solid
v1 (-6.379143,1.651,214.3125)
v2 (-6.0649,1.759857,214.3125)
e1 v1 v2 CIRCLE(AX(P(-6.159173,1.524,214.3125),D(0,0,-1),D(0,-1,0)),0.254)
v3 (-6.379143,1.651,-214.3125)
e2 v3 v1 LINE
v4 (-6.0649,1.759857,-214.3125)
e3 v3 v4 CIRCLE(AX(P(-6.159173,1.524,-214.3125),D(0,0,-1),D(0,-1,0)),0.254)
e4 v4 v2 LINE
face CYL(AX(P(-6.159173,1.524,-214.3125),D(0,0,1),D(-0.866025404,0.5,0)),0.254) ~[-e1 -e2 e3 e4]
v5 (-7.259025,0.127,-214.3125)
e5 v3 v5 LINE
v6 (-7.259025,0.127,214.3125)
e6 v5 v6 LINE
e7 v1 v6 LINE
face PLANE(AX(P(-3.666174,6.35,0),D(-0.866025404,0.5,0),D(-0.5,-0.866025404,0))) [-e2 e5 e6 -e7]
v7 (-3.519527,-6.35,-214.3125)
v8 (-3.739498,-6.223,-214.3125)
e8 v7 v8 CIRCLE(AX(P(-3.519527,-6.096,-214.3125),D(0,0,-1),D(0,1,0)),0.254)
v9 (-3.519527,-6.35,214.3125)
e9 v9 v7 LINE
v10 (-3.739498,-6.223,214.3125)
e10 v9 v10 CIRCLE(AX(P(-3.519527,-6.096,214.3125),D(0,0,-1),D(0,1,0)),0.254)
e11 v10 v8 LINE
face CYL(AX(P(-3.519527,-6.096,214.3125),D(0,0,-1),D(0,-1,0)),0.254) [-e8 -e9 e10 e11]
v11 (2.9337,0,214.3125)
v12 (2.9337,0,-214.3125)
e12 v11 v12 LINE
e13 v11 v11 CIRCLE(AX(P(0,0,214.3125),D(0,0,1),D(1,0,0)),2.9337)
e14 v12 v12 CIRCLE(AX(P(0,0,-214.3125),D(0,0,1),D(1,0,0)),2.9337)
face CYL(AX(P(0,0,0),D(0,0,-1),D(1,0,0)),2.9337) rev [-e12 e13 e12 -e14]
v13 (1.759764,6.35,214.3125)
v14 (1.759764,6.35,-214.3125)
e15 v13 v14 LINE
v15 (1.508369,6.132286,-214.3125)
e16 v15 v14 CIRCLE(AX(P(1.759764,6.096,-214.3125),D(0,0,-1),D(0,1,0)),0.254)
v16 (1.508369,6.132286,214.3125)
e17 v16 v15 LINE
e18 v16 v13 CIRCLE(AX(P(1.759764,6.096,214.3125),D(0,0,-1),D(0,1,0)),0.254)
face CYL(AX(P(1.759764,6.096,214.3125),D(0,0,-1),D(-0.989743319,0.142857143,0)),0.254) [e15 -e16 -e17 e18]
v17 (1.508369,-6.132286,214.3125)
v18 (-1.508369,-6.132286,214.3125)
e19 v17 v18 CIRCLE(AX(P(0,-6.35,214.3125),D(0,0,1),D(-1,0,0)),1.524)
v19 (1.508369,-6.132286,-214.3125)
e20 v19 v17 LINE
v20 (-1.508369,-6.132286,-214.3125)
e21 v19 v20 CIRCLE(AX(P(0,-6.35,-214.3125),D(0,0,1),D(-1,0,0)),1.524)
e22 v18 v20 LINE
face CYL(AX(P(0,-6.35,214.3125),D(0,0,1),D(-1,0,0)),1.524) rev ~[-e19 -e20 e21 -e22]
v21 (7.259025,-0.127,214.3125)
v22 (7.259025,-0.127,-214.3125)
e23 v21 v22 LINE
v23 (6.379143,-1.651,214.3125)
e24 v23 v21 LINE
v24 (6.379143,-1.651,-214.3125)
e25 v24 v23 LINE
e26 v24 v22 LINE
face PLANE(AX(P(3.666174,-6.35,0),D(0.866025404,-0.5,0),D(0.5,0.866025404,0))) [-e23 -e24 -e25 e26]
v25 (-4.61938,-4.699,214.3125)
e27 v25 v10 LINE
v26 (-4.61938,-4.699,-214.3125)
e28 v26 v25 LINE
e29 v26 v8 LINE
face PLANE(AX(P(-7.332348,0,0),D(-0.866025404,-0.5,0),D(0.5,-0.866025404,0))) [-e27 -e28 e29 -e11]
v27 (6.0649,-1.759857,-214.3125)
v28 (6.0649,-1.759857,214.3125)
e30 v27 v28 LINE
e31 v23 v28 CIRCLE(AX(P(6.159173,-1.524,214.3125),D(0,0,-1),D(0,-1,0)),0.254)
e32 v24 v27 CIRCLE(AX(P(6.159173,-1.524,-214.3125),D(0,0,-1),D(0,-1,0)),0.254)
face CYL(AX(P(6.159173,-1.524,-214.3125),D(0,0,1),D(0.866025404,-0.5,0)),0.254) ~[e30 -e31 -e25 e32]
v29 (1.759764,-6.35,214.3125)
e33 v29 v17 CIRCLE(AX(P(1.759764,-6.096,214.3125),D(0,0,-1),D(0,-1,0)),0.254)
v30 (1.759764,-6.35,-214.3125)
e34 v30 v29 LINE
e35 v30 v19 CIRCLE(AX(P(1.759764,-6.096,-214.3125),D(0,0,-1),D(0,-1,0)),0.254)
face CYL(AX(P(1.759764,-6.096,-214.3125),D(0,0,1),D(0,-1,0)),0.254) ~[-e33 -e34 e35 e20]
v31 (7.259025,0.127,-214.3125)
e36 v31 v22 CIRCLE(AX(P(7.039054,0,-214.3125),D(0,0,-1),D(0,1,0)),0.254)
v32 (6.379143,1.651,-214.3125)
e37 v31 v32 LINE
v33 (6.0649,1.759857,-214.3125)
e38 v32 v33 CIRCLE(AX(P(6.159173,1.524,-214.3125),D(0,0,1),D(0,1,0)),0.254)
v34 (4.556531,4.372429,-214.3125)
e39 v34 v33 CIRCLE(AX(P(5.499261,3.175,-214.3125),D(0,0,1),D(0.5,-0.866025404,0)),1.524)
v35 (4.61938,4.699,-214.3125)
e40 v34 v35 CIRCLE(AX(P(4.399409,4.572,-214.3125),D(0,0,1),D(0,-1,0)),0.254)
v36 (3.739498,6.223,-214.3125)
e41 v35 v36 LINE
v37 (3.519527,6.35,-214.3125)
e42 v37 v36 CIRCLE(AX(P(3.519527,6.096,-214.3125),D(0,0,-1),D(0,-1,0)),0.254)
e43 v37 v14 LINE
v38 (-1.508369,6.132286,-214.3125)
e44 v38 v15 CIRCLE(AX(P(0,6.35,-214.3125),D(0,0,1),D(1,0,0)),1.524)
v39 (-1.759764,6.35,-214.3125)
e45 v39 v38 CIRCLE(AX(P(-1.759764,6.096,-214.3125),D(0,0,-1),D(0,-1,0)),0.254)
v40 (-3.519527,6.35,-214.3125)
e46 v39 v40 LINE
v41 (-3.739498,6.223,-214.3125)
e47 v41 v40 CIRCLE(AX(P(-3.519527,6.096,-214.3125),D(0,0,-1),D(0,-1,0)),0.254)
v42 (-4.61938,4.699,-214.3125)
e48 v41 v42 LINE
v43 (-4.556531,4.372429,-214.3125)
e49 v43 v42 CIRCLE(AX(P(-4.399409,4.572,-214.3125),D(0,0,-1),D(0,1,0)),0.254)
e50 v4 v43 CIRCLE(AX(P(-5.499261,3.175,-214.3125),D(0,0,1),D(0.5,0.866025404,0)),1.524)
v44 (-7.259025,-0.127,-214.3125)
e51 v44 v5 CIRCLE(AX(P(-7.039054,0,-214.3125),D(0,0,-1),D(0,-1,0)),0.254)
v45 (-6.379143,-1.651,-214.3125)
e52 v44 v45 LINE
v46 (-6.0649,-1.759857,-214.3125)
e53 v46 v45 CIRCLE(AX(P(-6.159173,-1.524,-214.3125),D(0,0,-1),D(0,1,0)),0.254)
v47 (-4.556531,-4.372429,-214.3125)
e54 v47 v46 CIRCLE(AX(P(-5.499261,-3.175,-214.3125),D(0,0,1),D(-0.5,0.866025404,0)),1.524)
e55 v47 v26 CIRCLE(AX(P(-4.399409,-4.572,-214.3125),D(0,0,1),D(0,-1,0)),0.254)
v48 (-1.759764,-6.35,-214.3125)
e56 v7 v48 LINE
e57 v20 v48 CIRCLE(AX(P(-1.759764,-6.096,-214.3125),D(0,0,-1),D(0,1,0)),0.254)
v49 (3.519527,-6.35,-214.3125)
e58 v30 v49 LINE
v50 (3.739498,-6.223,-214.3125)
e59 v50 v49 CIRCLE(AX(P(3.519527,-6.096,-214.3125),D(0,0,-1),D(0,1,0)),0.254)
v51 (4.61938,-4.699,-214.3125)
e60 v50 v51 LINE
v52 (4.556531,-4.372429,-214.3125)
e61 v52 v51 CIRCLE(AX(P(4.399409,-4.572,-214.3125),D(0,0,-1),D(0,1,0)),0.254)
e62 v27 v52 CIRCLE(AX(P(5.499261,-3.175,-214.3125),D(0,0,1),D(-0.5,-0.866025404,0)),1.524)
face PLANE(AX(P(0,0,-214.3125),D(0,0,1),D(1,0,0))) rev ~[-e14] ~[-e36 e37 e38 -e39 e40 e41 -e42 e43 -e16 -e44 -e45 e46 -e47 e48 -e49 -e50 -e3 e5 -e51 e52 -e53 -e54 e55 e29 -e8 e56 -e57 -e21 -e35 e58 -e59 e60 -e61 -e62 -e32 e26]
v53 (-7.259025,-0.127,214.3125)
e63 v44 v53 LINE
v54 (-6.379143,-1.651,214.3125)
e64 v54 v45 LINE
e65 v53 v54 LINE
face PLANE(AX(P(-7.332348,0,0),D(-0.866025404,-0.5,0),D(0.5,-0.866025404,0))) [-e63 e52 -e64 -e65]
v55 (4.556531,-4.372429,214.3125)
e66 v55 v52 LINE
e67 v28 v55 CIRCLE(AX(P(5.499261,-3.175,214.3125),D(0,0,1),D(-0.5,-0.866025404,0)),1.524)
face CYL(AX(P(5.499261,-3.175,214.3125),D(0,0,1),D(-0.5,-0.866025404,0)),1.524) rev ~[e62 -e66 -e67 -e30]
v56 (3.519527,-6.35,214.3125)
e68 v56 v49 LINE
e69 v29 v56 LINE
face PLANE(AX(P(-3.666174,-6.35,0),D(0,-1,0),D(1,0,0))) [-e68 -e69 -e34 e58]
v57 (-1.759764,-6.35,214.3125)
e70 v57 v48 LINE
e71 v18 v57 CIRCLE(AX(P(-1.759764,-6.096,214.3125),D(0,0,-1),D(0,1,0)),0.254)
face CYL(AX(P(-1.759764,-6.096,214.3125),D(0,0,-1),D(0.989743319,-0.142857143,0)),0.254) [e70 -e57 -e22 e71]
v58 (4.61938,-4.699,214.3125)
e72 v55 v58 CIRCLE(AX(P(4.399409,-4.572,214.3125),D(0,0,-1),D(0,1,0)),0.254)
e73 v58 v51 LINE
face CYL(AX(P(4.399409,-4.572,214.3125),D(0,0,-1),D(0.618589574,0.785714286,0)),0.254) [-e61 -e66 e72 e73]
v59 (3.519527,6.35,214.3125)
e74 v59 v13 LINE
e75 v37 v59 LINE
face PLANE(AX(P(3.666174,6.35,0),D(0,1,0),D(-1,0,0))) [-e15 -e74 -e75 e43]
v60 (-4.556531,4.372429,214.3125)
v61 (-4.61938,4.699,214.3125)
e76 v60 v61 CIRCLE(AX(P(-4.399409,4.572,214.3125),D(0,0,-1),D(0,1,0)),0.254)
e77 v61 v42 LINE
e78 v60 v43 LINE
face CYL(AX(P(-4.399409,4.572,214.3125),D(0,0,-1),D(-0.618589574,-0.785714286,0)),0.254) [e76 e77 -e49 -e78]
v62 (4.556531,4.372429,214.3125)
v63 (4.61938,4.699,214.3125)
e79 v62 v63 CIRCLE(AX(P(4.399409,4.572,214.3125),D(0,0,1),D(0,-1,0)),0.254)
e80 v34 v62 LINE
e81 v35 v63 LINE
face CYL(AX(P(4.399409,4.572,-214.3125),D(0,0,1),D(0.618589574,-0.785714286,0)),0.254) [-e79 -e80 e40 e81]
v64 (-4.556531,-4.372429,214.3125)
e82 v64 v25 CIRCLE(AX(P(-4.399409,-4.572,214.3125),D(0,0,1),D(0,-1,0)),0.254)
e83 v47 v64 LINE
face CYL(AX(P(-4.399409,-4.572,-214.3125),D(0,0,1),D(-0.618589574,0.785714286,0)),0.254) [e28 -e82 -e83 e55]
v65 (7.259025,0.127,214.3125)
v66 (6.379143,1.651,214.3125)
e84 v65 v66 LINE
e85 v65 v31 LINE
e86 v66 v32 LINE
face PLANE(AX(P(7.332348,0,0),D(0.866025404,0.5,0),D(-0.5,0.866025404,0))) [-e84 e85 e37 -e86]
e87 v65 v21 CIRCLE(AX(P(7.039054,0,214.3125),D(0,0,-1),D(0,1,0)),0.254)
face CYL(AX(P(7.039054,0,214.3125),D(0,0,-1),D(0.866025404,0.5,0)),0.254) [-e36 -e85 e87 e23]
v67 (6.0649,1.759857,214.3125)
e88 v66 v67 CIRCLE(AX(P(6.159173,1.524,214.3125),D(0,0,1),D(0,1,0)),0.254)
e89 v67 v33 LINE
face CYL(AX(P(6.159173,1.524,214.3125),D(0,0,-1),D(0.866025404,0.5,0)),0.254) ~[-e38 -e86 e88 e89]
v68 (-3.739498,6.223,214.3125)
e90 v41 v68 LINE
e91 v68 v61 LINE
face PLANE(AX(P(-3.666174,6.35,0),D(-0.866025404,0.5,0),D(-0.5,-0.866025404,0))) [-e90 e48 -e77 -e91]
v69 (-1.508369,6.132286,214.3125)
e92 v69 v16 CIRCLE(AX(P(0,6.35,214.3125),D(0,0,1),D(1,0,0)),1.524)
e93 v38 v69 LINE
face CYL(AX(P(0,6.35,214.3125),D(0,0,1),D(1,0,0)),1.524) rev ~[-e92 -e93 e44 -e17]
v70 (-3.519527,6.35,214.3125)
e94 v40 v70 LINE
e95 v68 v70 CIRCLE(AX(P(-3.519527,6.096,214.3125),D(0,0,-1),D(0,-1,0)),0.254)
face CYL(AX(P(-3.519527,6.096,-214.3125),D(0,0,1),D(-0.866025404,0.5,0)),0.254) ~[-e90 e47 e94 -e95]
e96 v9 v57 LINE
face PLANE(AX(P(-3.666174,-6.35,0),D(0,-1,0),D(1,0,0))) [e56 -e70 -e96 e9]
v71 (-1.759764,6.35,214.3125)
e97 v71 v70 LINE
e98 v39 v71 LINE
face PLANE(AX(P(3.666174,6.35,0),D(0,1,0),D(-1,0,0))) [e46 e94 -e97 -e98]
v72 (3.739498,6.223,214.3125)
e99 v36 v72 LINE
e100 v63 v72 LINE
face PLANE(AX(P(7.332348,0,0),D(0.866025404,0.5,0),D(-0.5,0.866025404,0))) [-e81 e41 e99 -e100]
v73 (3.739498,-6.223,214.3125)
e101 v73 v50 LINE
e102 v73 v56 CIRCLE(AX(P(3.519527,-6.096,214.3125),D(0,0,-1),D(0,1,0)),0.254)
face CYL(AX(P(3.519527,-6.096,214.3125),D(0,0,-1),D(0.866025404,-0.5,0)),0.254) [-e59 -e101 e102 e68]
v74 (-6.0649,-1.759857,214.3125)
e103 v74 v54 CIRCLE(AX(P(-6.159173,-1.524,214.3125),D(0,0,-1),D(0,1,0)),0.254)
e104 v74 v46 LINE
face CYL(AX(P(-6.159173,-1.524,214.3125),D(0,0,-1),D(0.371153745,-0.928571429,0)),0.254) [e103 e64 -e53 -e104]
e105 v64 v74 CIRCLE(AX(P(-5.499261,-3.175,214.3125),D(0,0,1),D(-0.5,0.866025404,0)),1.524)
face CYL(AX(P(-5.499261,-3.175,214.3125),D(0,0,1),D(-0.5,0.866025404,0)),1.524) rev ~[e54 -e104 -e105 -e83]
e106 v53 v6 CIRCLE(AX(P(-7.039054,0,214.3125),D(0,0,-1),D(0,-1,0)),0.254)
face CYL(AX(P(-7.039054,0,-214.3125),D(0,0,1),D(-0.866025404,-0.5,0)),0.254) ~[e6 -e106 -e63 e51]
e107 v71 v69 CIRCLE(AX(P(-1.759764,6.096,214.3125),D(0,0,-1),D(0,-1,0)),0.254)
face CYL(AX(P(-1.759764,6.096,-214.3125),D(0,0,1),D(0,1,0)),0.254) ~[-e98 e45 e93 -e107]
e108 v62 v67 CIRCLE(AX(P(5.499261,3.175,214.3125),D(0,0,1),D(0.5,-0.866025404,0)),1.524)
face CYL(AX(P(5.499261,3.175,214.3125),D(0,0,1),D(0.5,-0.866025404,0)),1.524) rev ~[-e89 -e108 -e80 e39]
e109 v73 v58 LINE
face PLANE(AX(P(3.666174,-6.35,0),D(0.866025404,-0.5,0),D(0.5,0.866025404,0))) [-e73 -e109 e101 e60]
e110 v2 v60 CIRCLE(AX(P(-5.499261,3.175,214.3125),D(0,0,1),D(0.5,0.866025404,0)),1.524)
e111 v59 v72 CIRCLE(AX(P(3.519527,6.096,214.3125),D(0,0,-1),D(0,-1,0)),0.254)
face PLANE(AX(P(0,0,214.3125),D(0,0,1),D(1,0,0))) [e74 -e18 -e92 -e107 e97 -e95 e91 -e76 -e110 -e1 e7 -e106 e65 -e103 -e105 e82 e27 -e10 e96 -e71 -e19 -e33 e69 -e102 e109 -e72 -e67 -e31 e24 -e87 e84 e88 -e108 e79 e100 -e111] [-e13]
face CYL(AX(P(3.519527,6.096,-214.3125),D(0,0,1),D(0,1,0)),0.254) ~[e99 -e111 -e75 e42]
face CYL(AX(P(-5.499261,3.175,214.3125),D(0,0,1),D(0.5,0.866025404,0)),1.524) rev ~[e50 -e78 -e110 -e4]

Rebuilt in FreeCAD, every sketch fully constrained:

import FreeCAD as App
import Part
import Sketcher
Q = App.Units.Quantity


def edges_at(feature, points):
    """Names of the edges that pass closest to the given points."""
    edges = feature.Shape.Edges
    near = lambda p: min(range(len(edges)), key=lambda i: edges[i].distToShape(Part.Vertex(*p))[0])
    return sorted({f"Edge{near(p) + 1}" for p in points})


def add_polygon(sketch, points):
    """Adds a closed chain of lines whose ends are joined by coincident constraints."""
    first, n = sketch.GeometryCount, len(points)
    for a, b in zip(points, points[1:] + points[:1]):
        sketch.addGeometry(Part.LineSegment(App.Vector(*a, 0), App.Vector(*b, 0)), False)
    for i in range(n):
        sketch.addConstraint(Sketcher.Constraint("Coincident", first + i, 2, first + (i + 1) % n, 1))

doc = App.newDocument("Part")
body = doc.addObject("PartDesign::Body", "Body")

# Sketch on XY plane
sketch1 = doc.addObject("Sketcher::SketchObject", "Sketch")
body.addObject(sketch1)
sketch1.AttachmentSupport = (doc.XY_Plane, [""])
sketch1.MapMode = "FlatFace"
add_polygon(sketch1, [(7.332348, 0), (3.666174, 6.35), (-3.666174, 6.35), (-7.332348, 0), (-3.666174, -6.35), (3.666174, -6.35)])  # lines 0-5
sketch1.addGeometry(Part.Circle(App.Vector(0, 0, 0), App.Vector(0, 0, 1), 2.9337), False)  # 6
sketch1.addConstraint(Sketcher.Constraint("Horizontal", 1))
sketch1.addConstraint(Sketcher.Constraint("Horizontal", 4))
sketch1.addConstraint(Sketcher.Constraint("Coincident", 6, 3, -1, 1))
sketch1.addConstraint(Sketcher.Constraint("Symmetric", 0, 2, 3, 2, -1, 1))
sketch1.addConstraint(Sketcher.Constraint("Symmetric", 2, 2, 5, 2, -1, 1))
sketch1.addConstraint(Sketcher.Constraint("PointOnObject", 2, 2, -1))
sketch1.addConstraint(Sketcher.Constraint("Parallel", 2, 5))
sketch1.addConstraint(Sketcher.Constraint("Vertical", 1, 2, 3, 2))
sketch1.addConstraint(Sketcher.Constraint("Diameter", 6, Q("0.231 in")))
sketch1.addConstraint(Sketcher.Constraint("Angle", 0, Q("120 deg")))
sketch1.addConstraint(Sketcher.Constraint("DistanceY", 3, 2, 1, 2, Q("0.5 in")))
sketch1.addConstraint(Sketcher.Constraint("DistanceX", 1, 2, 1, 1, Q("7.332348 mm")))
pad1 = doc.addObject("PartDesign::Pad", "Pad")
body.addObject(pad1)
pad1.Profile = sketch1
pad1.Length = Q("16.875 in")
pad1.Midplane = True

# Sketch on XY plane
sketch2 = doc.addObject("Sketcher::SketchObject", "Sketch001")
body.addObject(sketch2)
sketch2.AttachmentSupport = (doc.XY_Plane, [""])
sketch2.MapMode = "FlatFace"
sketch2.AttachmentOffset = App.Placement(App.Vector(0, 0, 8.4375 * 25.4), App.Rotation())
sketch2.addGeometry(Part.Circle(App.Vector(0, 6.35, 0), App.Vector(0, 0, 1), 1.524), False)
sketch2.addConstraint(Sketcher.Constraint("PointOnObject", 0, 3, -2))
sketch2.addConstraint(Sketcher.Constraint("Diameter", 0, Q("0.12 in")))
sketch2.addConstraint(Sketcher.Constraint("DistanceY", -1, 1, 0, 3, Q("0.25 in")))
pocket1 = doc.addObject("PartDesign::Pocket", "Pocket")
body.addObject(pocket1)
pocket1.Profile = sketch2
pocket1.Type = "ThroughAll"
doc.recompute()

polarpattern = doc.addObject("PartDesign::PolarPattern", "PolarPattern")
body.addObject(polarpattern)
polarpattern.Originals = [pocket1]
polarpattern.Axis = (doc.Z_Axis, [""])
polarpattern.Angle = 360
polarpattern.Occurrences = 6
body.Tip = polarpattern
doc.recompute()

fillet = doc.addObject("PartDesign::Fillet", "Fillet")
body.addObject(fillet)
fillet.Base = (polarpattern, edges_at(polarpattern, [
    (3.666, -6.35, 0),
    (-3.666, -6.35, 0),
    (-7.332, 0, 0),
    (-3.666, 6.35, 0),
    (3.666, 6.35, 0),
    (7.332, 0, 0),
    (-1.524, 6.35, 0),
    (1.524, 6.35, 0),
    (-6.261, 1.855, 0),
    (-4.737, 4.495, 0),
    (-4.737, -4.495, 0),
    (-6.261, -1.855, 0),
    (1.524, -6.35, 0),
    (-1.524, -6.35, 0),
    (6.261, -1.855, 0),
    (4.737, -4.495, 0),
    (4.737, 4.495, 0),
    (6.261, 1.855, 0),
]))
fillet.Radius = Q("0.01 in")

doc.recompute()
